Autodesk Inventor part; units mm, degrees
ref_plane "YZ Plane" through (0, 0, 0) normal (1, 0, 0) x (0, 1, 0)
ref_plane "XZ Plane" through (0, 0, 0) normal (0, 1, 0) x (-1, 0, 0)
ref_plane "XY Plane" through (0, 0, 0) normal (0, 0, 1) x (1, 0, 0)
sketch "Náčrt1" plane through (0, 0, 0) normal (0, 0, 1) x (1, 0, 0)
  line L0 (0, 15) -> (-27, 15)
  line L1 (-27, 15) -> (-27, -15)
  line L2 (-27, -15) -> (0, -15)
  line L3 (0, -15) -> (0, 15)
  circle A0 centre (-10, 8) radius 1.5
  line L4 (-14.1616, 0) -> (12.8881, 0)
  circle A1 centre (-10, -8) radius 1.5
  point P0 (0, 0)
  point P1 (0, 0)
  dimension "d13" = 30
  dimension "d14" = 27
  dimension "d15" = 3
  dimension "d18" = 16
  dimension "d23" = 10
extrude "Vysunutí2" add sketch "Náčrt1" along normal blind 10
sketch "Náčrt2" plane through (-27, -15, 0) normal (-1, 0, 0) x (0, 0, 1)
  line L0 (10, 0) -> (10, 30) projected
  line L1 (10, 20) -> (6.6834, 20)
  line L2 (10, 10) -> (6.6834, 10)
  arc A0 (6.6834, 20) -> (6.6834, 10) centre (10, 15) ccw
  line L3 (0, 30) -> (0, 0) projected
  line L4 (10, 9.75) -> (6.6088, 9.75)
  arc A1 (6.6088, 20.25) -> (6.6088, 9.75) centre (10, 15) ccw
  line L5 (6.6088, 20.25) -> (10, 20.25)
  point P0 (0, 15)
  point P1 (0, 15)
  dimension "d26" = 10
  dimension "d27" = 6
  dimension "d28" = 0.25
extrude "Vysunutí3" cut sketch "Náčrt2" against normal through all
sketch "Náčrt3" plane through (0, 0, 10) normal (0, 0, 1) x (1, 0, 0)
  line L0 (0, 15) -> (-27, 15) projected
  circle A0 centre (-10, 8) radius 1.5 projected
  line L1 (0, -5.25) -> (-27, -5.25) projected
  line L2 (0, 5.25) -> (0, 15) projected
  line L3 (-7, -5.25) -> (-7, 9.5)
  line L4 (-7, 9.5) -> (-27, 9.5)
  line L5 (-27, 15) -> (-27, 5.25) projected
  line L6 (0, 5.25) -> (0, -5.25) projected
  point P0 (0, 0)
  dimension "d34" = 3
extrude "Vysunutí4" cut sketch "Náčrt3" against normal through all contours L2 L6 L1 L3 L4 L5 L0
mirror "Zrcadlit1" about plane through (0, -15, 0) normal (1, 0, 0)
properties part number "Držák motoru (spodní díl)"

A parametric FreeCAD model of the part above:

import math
import FreeCAD as App
import Part
import Sketcher
from FreeCAD import Vector

doc = App.newDocument("Part")
params = doc.addObject("Spreadsheet::Sheet", "Params")
for row, (alias, value) in enumerate([
    ("sketch1_diameter", "3 mm"),
    ("sketch1_width", "27 mm"),
    ("sketch1_height", "30 mm"),
    ("pad1_length", "10 mm"),
    ("sketch2_radius", "6.25 mm"),
    ("sketch2_width", "10.5 mm"),
    ("sketch3_width", "27 mm"),
    ("sketch3_width2", "20 mm"),
    ("sketch3_height", "5.5 mm"),
    ("sketch3_height2", "20.25 mm"),
], start=1):
    params.set(f"A{row}", alias)
    params.set(f"B{row}", "=" + value)
    params.setAlias(f"B{row}", alias)

body = doc.addObject("PartDesign::Body", "Body")

sketch1 = doc.addObject("Sketcher::SketchObject", "Sketch")
body.addObject(sketch1)
sketch1.AttachmentSupport = (doc.XY_Plane, [""])
sketch1.MapMode = "FlatFace"
sketch1.addGeometry(Part.LineSegment(Vector(0, -15, 0), Vector(0, 15, 0)), False)
sketch1.addGeometry(Part.LineSegment(Vector(0, 15, 0), Vector(-27, 15, 0)), False)
sketch1.addGeometry(Part.LineSegment(Vector(-27, 15, 0), Vector(-27, -15, 0)), False)
sketch1.addGeometry(Part.LineSegment(Vector(-27, -15, 0), Vector(0, -15, 0)), False)
sketch1.addGeometry(Part.Circle(Vector(-10, -8, 0), Vector(0, 0, 1), 1.5), False)
sketch1.addGeometry(Part.Circle(Vector(-10, 8, 0), Vector(0, 0, 1), 1.5), False)
sketch1.addConstraint(Sketcher.Constraint("Coincident", 0, 2, 1, 1))
sketch1.addConstraint(Sketcher.Constraint("Coincident", 1, 2, 2, 1))
sketch1.addConstraint(Sketcher.Constraint("Coincident", 2, 2, 3, 1))
sketch1.addConstraint(Sketcher.Constraint("Coincident", 3, 2, 0, 1))
sketch1.addConstraint(Sketcher.Constraint("Vertical", 0))
sketch1.addConstraint(Sketcher.Constraint("Horizontal", 1))
sketch1.addConstraint(Sketcher.Constraint("Vertical", 2))
sketch1.addConstraint(Sketcher.Constraint("Horizontal", 3))
sketch1.addConstraint(Sketcher.Constraint("Equal", 4, 5))
sketch1.addConstraint(Sketcher.Constraint("Symmetric", 0, 2, 3, 2, -1, 1))
sketch1.addConstraint(Sketcher.Constraint("Symmetric", 4, 3, 5, 3, -1))
sketch1.addConstraint(Sketcher.Constraint("Diameter", 4, 3.0))
sketch1.addConstraint(Sketcher.Constraint("DistanceX", 1, 2, 1, 1, 27.0))
sketch1.addConstraint(Sketcher.Constraint("DistanceY", 0, 1, 0, 2, 30.0))
sketch1.addConstraint(Sketcher.Constraint("DistanceX", 4, 3, -1, 1, 10.0))
sketch1.addConstraint(Sketcher.Constraint("DistanceY", 4, 3, 5, 3, 16.0))
sketch1.setExpression("Constraints[11]", "Params.sketch1_diameter")
sketch1.setExpression("Constraints[12]", "Params.sketch1_width")
sketch1.setExpression("Constraints[13]", "Params.sketch1_height")
pad1 = doc.addObject("PartDesign::Pad", "Pad")
body.addObject(pad1)
pad1.Profile = sketch1
pad1.setExpression("Length", "Params.pad1_length")

sketch2 = doc.addObject("Sketcher::SketchObject", "Sketch001")
body.addObject(sketch2)
sketch2.AttachmentSupport = (doc.YZ_Plane, [""])
sketch2.MapMode = "FlatFace"
sketch2.AttachmentOffset = App.Placement(Vector(0, 0, -27), App.Rotation())
sketch2.addGeometry(Part.LineSegment(Vector(-5.25, 6.6088, 0), Vector(-5.25, 10, 0)), False)
sketch2.addGeometry(Part.LineSegment(Vector(-5.25, 10, 0), Vector(5.25, 10, 0)), False)
sketch2.addGeometry(Part.LineSegment(Vector(5.25, 10, 0), Vector(5.25, 6.6088, 0)), False)
sketch2.addGeometry(Part.ArcOfCircle(Part.Circle(Vector(0, 10, 0), Vector(0, 0, 1), 6.250019), math.radians(-147.13985), math.radians(-32.86015)), False)
sketch2.addConstraint(Sketcher.Constraint("Coincident", 0, 2, 1, 1))
sketch2.addConstraint(Sketcher.Constraint("Coincident", 1, 2, 2, 1))
sketch2.addConstraint(Sketcher.Constraint("Coincident", 2, 2, 3, 2))
sketch2.addConstraint(Sketcher.Constraint("Coincident", 3, 1, 0, 1))
sketch2.addConstraint(Sketcher.Constraint("Vertical", 0))
sketch2.addConstraint(Sketcher.Constraint("Horizontal", 1))
sketch2.addConstraint(Sketcher.Constraint("Vertical", 2))
sketch2.addConstraint(Sketcher.Constraint("Symmetric", 2, 2, 3, 1, -2))
sketch2.addConstraint(Sketcher.Constraint("Horizontal", 3, 3, 0, 2))
sketch2.addConstraint(Sketcher.Constraint("DistanceY", -1, 1, 3, 3, 10.0))
sketch2.addConstraint(Sketcher.Constraint("Radius", 3, 6.25))
sketch2.addConstraint(Sketcher.Constraint("DistanceX", 1, 1, 1, 2, 10.5))
sketch2.setExpression("Constraints[10]", "Params.sketch2_radius")
sketch2.setExpression("Constraints[11]", "Params.sketch2_width")
pocket1 = doc.addObject("PartDesign::Pocket", "Pocket")
body.addObject(pocket1)
pocket1.Profile = sketch2
pocket1.Type = "ThroughAll"
pocket1.Reversed = True

sketch3 = doc.addObject("Sketcher::SketchObject", "Sketch002")
body.addObject(sketch3)
sketch3.AttachmentSupport = (doc.XY_Plane, [""])
sketch3.MapMode = "FlatFace"
sketch3.AttachmentOffset = App.Placement(Vector(0, 0, 10), App.Rotation())
sketch3.addGeometry(Part.LineSegment(Vector(0, -5.25, 0), Vector(0, 15, 0)), False)
sketch3.addGeometry(Part.LineSegment(Vector(0, 15, 0), Vector(-27, 15, 0)), False)
sketch3.addGeometry(Part.LineSegment(Vector(-27, 15, 0), Vector(-27, 9.5, 0)), False)
sketch3.addGeometry(Part.LineSegment(Vector(-27, 9.5, 0), Vector(-7, 9.5, 0)), False)
sketch3.addGeometry(Part.LineSegment(Vector(-7, 9.5, 0), Vector(-7, -5.25, 0)), False)
sketch3.addGeometry(Part.LineSegment(Vector(-7, -5.25, 0), Vector(0, -5.25, 0)), False)
sketch3.addConstraint(Sketcher.Constraint("Coincident", 0, 2, 1, 1))
sketch3.addConstraint(Sketcher.Constraint("Coincident", 1, 2, 2, 1))
sketch3.addConstraint(Sketcher.Constraint("Coincident", 2, 2, 3, 1))
sketch3.addConstraint(Sketcher.Constraint("Coincident", 3, 2, 4, 1))
sketch3.addConstraint(Sketcher.Constraint("Coincident", 4, 2, 5, 1))
sketch3.addConstraint(Sketcher.Constraint("Coincident", 5, 2, 0, 1))
sketch3.addConstraint(Sketcher.Constraint("Vertical", 0))
sketch3.addConstraint(Sketcher.Constraint("Horizontal", 1))
sketch3.addConstraint(Sketcher.Constraint("Vertical", 2))
sketch3.addConstraint(Sketcher.Constraint("Horizontal", 3))
sketch3.addConstraint(Sketcher.Constraint("Vertical", 4))
sketch3.addConstraint(Sketcher.Constraint("Horizontal", 5))
sketch3.addConstraint(Sketcher.Constraint("PointOnObject", 0, 2, -2))
sketch3.addConstraint(Sketcher.Constraint("DistanceX", 1, 2, 1, 1, 27.0))
sketch3.addConstraint(Sketcher.Constraint("DistanceX", 3, 1, 3, 2, 20.0))
sketch3.addConstraint(Sketcher.Constraint("DistanceY", 2, 2, 2, 1, 5.5))
sketch3.addConstraint(Sketcher.Constraint("DistanceY", -1, 1, 0, 2, 15.0))
sketch3.addConstraint(Sketcher.Constraint("DistanceY", 0, 1, 0, 2, 20.25))
sketch3.setExpression("Constraints[13]", "Params.sketch3_width")
sketch3.setExpression("Constraints[14]", "Params.sketch3_width2")
sketch3.setExpression("Constraints[15]", "Params.sketch3_height")
sketch3.setExpression("Constraints[17]", "Params.sketch3_height2")
pocket2 = doc.addObject("PartDesign::Pocket", "Pocket001")
body.addObject(pocket2)
pocket2.Profile = sketch3
pocket2.Type = "ThroughAll"
doc.recompute()

mirrored = doc.addObject("PartDesign::Mirrored", "Mirrored")
body.addObject(mirrored)
mirrored.TransformMode = "Transform body"
mirrored.MirrorPlane = (doc.YZ_Plane, [""])
body.Tip = mirrored

doc.recompute()
